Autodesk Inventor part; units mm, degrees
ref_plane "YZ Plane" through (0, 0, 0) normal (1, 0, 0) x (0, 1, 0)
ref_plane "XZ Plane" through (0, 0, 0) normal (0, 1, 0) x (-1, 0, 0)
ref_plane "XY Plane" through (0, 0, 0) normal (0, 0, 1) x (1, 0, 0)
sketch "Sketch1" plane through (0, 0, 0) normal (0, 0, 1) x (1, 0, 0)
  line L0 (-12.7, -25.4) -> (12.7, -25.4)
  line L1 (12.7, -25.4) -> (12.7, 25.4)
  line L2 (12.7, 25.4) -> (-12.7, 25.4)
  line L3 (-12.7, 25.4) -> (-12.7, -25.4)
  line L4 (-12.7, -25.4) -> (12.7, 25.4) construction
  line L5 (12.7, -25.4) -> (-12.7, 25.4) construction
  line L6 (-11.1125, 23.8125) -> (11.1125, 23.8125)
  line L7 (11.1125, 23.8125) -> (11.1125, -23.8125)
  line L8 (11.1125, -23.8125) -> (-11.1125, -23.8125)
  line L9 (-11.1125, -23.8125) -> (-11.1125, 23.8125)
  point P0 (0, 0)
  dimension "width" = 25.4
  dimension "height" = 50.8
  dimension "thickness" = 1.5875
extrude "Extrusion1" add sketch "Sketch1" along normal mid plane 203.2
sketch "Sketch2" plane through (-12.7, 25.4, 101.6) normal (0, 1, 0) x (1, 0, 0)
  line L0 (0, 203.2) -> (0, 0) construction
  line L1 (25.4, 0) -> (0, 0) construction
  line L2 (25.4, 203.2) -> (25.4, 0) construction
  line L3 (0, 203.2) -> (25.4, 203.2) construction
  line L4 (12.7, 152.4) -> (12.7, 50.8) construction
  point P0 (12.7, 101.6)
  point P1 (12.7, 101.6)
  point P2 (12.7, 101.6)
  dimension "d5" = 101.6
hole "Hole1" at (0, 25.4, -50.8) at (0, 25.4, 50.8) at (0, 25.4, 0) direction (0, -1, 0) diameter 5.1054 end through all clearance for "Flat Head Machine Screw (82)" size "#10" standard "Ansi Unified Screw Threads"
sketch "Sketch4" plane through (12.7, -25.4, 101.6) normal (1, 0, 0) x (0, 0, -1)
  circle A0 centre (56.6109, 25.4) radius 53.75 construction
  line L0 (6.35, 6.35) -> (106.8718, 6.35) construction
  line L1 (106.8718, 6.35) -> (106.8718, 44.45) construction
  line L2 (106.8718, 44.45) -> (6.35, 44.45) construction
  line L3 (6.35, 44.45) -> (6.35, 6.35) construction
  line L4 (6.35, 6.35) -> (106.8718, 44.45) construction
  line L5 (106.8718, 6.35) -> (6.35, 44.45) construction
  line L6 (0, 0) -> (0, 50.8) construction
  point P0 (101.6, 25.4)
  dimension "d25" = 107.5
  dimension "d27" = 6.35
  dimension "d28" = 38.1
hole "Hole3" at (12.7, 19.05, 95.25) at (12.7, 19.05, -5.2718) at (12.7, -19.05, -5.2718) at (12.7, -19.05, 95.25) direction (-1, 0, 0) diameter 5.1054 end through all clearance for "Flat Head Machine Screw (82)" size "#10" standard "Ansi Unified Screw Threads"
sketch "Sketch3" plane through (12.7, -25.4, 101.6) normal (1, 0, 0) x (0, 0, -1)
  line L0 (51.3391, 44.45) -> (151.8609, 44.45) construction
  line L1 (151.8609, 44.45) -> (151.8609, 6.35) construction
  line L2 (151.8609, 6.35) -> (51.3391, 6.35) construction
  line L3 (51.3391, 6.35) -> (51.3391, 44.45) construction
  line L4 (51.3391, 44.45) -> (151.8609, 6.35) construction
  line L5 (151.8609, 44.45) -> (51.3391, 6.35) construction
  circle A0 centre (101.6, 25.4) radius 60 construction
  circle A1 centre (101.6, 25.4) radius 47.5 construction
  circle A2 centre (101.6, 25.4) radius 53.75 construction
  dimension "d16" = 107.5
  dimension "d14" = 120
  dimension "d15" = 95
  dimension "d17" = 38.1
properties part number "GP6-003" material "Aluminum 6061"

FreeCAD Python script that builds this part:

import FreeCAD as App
import Part
import Sketcher
Q = App.Units.Quantity

doc = App.newDocument("Part")
body = doc.addObject("PartDesign::Body", "Body")

sketch1 = body.newObject("Sketcher::SketchObject", "Sketch")
sketch1.AttachmentSupport = (doc.getObject("XY_Plane"), [""])
sketch1.MapMode = "FlatFace"
sketch1.addGeometry(Part.LineSegment(App.Vector(-12.7, 25.4, 0), App.Vector(-12.7, -25.4, 0)), False)
sketch1.addGeometry(Part.LineSegment(App.Vector(-12.7, -25.4, 0), App.Vector(12.7, -25.4, 0)), False)
sketch1.addGeometry(Part.LineSegment(App.Vector(12.7, -25.4, 0), App.Vector(12.7, 25.4, 0)), False)
sketch1.addGeometry(Part.LineSegment(App.Vector(12.7, 25.4, 0), App.Vector(-12.7, 25.4, 0)), False)
sketch1.addGeometry(Part.LineSegment(App.Vector(-11.1125, -23.8125, 0), App.Vector(-11.1125, 23.8125, 0)), False)
sketch1.addGeometry(Part.LineSegment(App.Vector(-11.1125, 23.8125, 0), App.Vector(11.1125, 23.8125, 0)), False)
sketch1.addGeometry(Part.LineSegment(App.Vector(11.1125, 23.8125, 0), App.Vector(11.1125, -23.8125, 0)), False)
sketch1.addGeometry(Part.LineSegment(App.Vector(11.1125, -23.8125, 0), App.Vector(-11.1125, -23.8125, 0)), False)
sketch1.addConstraint(Sketcher.Constraint("Coincident", 0, 2, 1, 1))
sketch1.addConstraint(Sketcher.Constraint("Coincident", 1, 2, 2, 1))
sketch1.addConstraint(Sketcher.Constraint("Coincident", 2, 2, 3, 1))
sketch1.addConstraint(Sketcher.Constraint("Coincident", 3, 2, 0, 1))
sketch1.addConstraint(Sketcher.Constraint("Coincident", 4, 2, 5, 1))
sketch1.addConstraint(Sketcher.Constraint("Coincident", 5, 2, 6, 1))
sketch1.addConstraint(Sketcher.Constraint("Coincident", 6, 2, 7, 1))
sketch1.addConstraint(Sketcher.Constraint("Coincident", 7, 2, 4, 1))
sketch1.addConstraint(Sketcher.Constraint("Vertical", 0))
sketch1.addConstraint(Sketcher.Constraint("Horizontal", 1))
sketch1.addConstraint(Sketcher.Constraint("Vertical", 2))
sketch1.addConstraint(Sketcher.Constraint("Horizontal", 3))
sketch1.addConstraint(Sketcher.Constraint("Vertical", 4))
sketch1.addConstraint(Sketcher.Constraint("Horizontal", 5))
sketch1.addConstraint(Sketcher.Constraint("Vertical", 6))
sketch1.addConstraint(Sketcher.Constraint("Horizontal", 7))
sketch1.addConstraint(Sketcher.Constraint("Symmetric", 0, 2, 2, 2, -1, 1))
sketch1.addConstraint(Sketcher.Constraint("Symmetric", 4, 2, 6, 2, -1, 1))
sketch1.addConstraint(Sketcher.Constraint("DistanceX", 1, 1, 1, 2, Q("1 in")))
sketch1.addConstraint(Sketcher.Constraint("DistanceY", 0, 2, 0, 1, Q("2 in")))
sketch1.addConstraint(Sketcher.Constraint("DistanceX", 3, 2, 4, 2, Q("0.0625 in")))
sketch1.addConstraint(Sketcher.Constraint("DistanceY", 4, 2, 3, 2, Q("0.0625 in")))
pad1 = body.newObject("PartDesign::Pad", "Pad")
pad1.Profile = sketch1
pad1.Length = Q("8 in")
pad1.Midplane = True

sketch2 = body.newObject("Sketcher::SketchObject", "Sketch001")
sketch2.AttachmentSupport = (doc.getObject("XZ_Plane"), [""])
sketch2.MapMode = "FlatFace"
sketch2.AttachmentOffset = App.Placement(App.Vector(0, 0, -1 * 25.4), App.Rotation())
sketch2.addGeometry(Part.Circle(App.Vector(0, -50.8, 0), App.Vector(0, 0, 1), 2.5527), False)
sketch2.addGeometry(Part.Circle(App.Vector(0, 50.8, 0), App.Vector(0, 0, 1), 2.5527), False)
sketch2.addGeometry(Part.Circle(App.Vector(0, 0, 0), App.Vector(0, 0, 1), 2.5527), False)
sketch2.addConstraint(Sketcher.Constraint("Coincident", 2, 3, -1, 1))
sketch2.addConstraint(Sketcher.Constraint("Equal", 0, 1))
sketch2.addConstraint(Sketcher.Constraint("Equal", 1, 2))
sketch2.addConstraint(Sketcher.Constraint("Symmetric", 0, 3, 1, 3, -1, 1))
sketch2.addConstraint(Sketcher.Constraint("PointOnObject", 0, 3, -2))
sketch2.addConstraint(Sketcher.Constraint("Diameter", 0, Q("0.201 in")))
sketch2.addConstraint(Sketcher.Constraint("DistanceY", 0, 3, -1, 1, Q("2 in")))
doc.recompute()
hole = body.newObject("PartDesign::Hole", "Hole")
hole.Profile = sketch2
hole.ThreadType = "None"
hole.Diameter = Q("0.201 in")
hole.DepthType = "ThroughAll"
hole.Reversed = True

sketch3 = body.newObject("Sketcher::SketchObject", "Sketch002")
sketch3.AttachmentSupport = (doc.getObject("YZ_Plane"), [""])
sketch3.MapMode = "FlatFace"
sketch3.AttachmentOffset = App.Placement(App.Vector(0, 0, 0.5 * 25.4), App.Rotation())
sketch3.addGeometry(Part.Circle(App.Vector(19.05, 95.25, 0), App.Vector(0, 0, 1), 2.5527), False)
sketch3.addGeometry(Part.Circle(App.Vector(19.05, -5.2718, 0), App.Vector(0, 0, 1), 2.5527), False)
sketch3.addGeometry(Part.Circle(App.Vector(-19.05, -5.2718, 0), App.Vector(0, 0, 1), 2.5527), False)
sketch3.addGeometry(Part.Circle(App.Vector(-19.05, 95.25, 0), App.Vector(0, 0, 1), 2.5527), False)
sketch3.addConstraint(Sketcher.Constraint("Equal", 0, 1))
sketch3.addConstraint(Sketcher.Constraint("Equal", 1, 2))
sketch3.addConstraint(Sketcher.Constraint("Equal", 2, 3))
sketch3.addConstraint(Sketcher.Constraint("Symmetric", 1, 3, 2, 3, -2))
sketch3.addConstraint(Sketcher.Constraint("Symmetric", 0, 3, 3, 3, -2))
sketch3.addConstraint(Sketcher.Constraint("Vertical", 0, 3, 1, 3))
sketch3.addConstraint(Sketcher.Constraint("Diameter", 0, Q("0.201 in")))
sketch3.addConstraint(Sketcher.Constraint("DistanceX", 2, 3, 1, 3, Q("1.5 in")))
sketch3.addConstraint(Sketcher.Constraint("DistanceY", -1, 1, 0, 3, Q("3.75 in")))
sketch3.addConstraint(Sketcher.Constraint("DistanceY", 1, 3, -1, 1, 5.2718))
doc.recompute()
hole2 = body.newObject("PartDesign::Hole", "Hole001")
hole2.Profile = sketch3
hole2.ThreadType = "None"
hole2.Diameter = Q("0.201 in")
hole2.DepthType = "ThroughAll"

doc.recompute()
